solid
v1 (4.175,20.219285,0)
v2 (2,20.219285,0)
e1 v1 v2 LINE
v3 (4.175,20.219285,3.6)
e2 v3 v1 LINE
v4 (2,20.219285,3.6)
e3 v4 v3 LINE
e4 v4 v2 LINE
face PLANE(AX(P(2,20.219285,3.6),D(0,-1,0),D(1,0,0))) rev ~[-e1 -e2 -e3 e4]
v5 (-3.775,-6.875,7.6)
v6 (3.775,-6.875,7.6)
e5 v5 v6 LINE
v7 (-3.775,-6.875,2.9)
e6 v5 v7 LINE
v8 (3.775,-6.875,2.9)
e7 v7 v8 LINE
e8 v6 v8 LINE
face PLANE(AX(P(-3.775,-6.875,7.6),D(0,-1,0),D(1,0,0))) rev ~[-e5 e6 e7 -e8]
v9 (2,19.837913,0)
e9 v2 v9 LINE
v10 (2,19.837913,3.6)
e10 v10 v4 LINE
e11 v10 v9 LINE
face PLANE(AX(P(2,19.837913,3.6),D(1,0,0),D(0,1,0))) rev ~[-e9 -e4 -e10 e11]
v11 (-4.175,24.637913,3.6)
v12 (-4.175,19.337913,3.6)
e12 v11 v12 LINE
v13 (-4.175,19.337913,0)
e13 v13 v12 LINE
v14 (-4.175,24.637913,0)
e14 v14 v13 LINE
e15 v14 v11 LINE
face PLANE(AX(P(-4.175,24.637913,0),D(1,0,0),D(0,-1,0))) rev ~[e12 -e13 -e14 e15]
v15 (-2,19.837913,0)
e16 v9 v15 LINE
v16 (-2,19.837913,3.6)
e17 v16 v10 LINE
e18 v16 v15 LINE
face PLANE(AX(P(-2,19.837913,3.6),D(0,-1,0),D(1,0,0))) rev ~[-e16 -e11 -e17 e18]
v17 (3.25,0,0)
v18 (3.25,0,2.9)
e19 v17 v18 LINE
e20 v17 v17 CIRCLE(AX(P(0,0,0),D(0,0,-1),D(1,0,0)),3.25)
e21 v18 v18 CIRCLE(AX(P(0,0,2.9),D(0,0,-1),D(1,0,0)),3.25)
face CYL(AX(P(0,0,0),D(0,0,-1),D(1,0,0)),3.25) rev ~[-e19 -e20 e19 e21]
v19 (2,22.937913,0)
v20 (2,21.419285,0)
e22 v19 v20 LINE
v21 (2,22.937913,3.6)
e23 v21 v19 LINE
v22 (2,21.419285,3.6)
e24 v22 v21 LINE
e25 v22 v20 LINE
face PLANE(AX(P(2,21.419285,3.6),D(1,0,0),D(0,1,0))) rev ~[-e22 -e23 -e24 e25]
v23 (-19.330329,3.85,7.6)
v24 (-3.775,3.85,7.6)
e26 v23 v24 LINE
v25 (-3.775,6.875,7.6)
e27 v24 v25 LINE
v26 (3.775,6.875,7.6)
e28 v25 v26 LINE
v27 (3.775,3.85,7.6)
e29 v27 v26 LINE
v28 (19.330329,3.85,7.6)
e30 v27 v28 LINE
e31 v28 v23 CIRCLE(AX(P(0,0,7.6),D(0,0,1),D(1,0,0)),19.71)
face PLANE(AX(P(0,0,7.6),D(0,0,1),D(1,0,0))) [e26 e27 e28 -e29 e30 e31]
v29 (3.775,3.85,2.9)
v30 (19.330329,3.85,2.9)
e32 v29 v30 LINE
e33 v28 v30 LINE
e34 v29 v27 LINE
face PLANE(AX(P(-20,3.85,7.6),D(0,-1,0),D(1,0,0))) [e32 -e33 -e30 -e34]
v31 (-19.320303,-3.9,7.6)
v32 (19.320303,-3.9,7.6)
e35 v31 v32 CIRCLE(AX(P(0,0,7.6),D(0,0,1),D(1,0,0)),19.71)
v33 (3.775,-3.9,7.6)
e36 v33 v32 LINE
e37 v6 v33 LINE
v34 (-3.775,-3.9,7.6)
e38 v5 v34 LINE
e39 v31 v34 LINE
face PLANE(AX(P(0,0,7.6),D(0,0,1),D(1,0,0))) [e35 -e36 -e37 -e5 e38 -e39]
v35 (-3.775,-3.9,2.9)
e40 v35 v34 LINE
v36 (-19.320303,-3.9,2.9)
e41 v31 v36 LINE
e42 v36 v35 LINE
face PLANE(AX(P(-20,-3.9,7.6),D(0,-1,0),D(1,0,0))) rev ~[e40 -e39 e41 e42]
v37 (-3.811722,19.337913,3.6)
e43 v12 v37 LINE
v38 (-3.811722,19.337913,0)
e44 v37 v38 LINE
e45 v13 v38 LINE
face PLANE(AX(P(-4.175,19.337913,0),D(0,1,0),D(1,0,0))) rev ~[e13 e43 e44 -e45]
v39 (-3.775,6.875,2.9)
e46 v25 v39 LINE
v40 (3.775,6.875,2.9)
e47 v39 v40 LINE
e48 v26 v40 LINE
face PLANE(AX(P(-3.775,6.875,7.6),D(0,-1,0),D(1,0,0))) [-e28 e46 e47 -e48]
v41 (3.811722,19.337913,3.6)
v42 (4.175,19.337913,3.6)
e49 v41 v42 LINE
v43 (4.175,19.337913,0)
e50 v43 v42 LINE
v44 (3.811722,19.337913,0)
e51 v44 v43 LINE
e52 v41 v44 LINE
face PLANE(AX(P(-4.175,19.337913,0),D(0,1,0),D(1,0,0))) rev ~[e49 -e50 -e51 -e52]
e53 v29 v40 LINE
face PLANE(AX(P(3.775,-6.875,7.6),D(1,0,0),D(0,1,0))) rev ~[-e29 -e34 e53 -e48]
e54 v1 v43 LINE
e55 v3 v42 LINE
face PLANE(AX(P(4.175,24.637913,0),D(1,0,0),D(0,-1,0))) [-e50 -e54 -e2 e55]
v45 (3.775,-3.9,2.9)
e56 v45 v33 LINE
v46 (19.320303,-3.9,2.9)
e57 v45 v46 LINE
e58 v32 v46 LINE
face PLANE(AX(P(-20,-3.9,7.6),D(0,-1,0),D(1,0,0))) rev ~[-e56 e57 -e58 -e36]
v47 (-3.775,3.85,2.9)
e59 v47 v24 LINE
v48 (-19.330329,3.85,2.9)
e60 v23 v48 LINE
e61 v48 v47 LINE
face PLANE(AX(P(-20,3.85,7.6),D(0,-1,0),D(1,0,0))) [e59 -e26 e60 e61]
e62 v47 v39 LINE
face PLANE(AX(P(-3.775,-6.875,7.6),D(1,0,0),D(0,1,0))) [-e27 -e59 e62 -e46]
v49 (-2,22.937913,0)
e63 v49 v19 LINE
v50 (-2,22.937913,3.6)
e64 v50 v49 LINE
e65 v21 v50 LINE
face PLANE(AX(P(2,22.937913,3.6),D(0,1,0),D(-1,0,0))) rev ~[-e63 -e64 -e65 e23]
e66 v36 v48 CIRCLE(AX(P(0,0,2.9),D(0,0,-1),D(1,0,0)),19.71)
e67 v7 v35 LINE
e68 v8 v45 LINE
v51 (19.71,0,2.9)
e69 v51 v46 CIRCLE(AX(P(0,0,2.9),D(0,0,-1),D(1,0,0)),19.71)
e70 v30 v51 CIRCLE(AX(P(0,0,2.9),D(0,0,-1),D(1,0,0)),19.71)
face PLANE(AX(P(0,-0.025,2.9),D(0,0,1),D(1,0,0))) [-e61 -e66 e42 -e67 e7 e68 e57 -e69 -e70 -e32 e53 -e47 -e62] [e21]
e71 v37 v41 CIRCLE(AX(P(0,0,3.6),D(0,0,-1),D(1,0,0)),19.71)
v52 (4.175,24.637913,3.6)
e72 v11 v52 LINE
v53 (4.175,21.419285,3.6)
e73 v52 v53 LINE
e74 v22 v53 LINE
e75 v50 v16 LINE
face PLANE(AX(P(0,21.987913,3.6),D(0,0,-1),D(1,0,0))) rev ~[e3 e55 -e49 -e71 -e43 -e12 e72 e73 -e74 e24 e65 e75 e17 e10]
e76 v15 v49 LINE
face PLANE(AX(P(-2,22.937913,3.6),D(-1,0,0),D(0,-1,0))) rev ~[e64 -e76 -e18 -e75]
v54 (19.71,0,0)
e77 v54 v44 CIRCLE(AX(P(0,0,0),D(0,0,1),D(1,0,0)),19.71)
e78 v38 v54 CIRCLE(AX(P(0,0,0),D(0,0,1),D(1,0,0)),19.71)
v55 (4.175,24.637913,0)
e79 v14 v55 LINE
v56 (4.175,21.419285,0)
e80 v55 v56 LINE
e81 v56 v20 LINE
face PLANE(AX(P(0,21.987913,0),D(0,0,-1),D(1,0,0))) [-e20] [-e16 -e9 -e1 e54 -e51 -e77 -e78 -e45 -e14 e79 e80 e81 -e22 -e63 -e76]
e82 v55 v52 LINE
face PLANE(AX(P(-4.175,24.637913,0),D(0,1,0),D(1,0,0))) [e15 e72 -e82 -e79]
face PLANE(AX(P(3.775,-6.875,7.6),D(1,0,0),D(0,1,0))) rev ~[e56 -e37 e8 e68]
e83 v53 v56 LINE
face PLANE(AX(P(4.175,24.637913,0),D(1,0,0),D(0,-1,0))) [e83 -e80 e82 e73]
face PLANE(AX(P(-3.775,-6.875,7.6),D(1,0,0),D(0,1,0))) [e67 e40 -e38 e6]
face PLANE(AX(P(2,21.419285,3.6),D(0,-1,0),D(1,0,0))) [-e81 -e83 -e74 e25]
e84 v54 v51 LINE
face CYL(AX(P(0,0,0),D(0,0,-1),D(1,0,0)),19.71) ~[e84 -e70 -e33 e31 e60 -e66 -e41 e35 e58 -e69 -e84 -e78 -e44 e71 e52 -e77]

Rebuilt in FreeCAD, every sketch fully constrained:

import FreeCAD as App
import Part
import Sketcher

V = App.Vector
Q = App.Units.Quantity

doc = App.newDocument("Part")
body = doc.addObject("PartDesign::Body", "Body")

# Sketch on XY plane
sketch1 = body.newObject("Sketcher::SketchObject", "Sketch")
sketch1.AttachmentSupport = (doc.getObject("XY_Plane"), [""])
sketch1.MapMode = "FlatFace"
sketch1.addGeometry(Part.Circle(V(0, 0, 0), V(0, 0, 1), 20), False)
sketch1.addConstraint(Sketcher.Constraint("Coincident", 0, 3, -1, 1))
sketch1.addConstraint(Sketcher.Constraint("Diameter", 0, Q("39.42 mm")))
pad1 = body.newObject("PartDesign::Pad", "Pad")
pad1.Profile = sketch1
pad1.Length = 7.6

# Sketch on XY plane
sketch2 = body.newObject("Sketcher::SketchObject", "Sketch001")
sketch2.AttachmentSupport = (doc.getObject("XY_Plane"), [""])
sketch2.MapMode = "FlatFace"
sketch2.AttachmentOffset = App.Placement(V(0, 0, 7.6), App.Rotation())
sketch2.addGeometry(Part.LineSegment(V(-20, 4, 0), V(-20, -4, 0)), False)
sketch2.addGeometry(Part.LineSegment(V(-20, -4, 0), V(20, -4, 0)), False)
sketch2.addGeometry(Part.LineSegment(V(20, -4, 0), V(20, 4, 0)), False)
sketch2.addGeometry(Part.LineSegment(V(20, 4, 0), V(-20, 4, 0)), False)
sketch2.addConstraint(Sketcher.Constraint("Coincident", 0, 2, 1, 1))
sketch2.addConstraint(Sketcher.Constraint("Coincident", 1, 2, 2, 1))
sketch2.addConstraint(Sketcher.Constraint("Coincident", 2, 2, 3, 1))
sketch2.addConstraint(Sketcher.Constraint("Coincident", 3, 2, 0, 1))
sketch2.addConstraint(Sketcher.Constraint("Vertical", 0))
sketch2.addConstraint(Sketcher.Constraint("Horizontal", 1))
sketch2.addConstraint(Sketcher.Constraint("Vertical", 2))
sketch2.addConstraint(Sketcher.Constraint("Horizontal", 3))
sketch2.addConstraint(Sketcher.Constraint("DistanceX", 1, 1, 1, 2, Q("40 mm")))
sketch2.addConstraint(Sketcher.Constraint("DistanceX", 0, 2, -1, 1, Q("20 mm")))
sketch2.addConstraint(Sketcher.Constraint("DistanceY", 0, 2, 0, 1, Q("7.75 mm")))
sketch2.addConstraint(Sketcher.Constraint("DistanceY", 0, 2, -1, 1, Q("3.9 mm")))
pocket1 = body.newObject("PartDesign::Pocket", "Pocket")
pocket1.Profile = sketch2
pocket1.Length = 4.7

# Sketch on XY plane
sketch3 = body.newObject("Sketcher::SketchObject", "Sketch002")
sketch3.AttachmentSupport = (doc.getObject("XY_Plane"), [""])
sketch3.MapMode = "FlatFace"
sketch3.AttachmentOffset = App.Placement(V(0, 0, 7.6), App.Rotation())
sketch3.addGeometry(Part.LineSegment(V(-4, 7, 0), V(-4, -7, 0)), False)
sketch3.addGeometry(Part.LineSegment(V(-4, -7, 0), V(4, -7, 0)), False)
sketch3.addGeometry(Part.LineSegment(V(4, -7, 0), V(4, 7, 0)), False)
sketch3.addGeometry(Part.LineSegment(V(4, 7, 0), V(-4, 7, 0)), False)
sketch3.addConstraint(Sketcher.Constraint("Coincident", 0, 2, 1, 1))
sketch3.addConstraint(Sketcher.Constraint("Coincident", 1, 2, 2, 1))
sketch3.addConstraint(Sketcher.Constraint("Coincident", 2, 2, 3, 1))
sketch3.addConstraint(Sketcher.Constraint("Coincident", 3, 2, 0, 1))
sketch3.addConstraint(Sketcher.Constraint("Vertical", 0))
sketch3.addConstraint(Sketcher.Constraint("Horizontal", 1))
sketch3.addConstraint(Sketcher.Constraint("Vertical", 2))
sketch3.addConstraint(Sketcher.Constraint("Horizontal", 3))
sketch3.addConstraint(Sketcher.Constraint("Symmetric", 0, 2, 2, 2, -1, 1))
sketch3.addConstraint(Sketcher.Constraint("DistanceX", 1, 1, 1, 2, Q("7.55 mm")))
sketch3.addConstraint(Sketcher.Constraint("DistanceY", 0, 2, 0, 1, Q("13.75 mm")))
pocket2 = body.newObject("PartDesign::Pocket", "Pocket001")
pocket2.Profile = sketch3
pocket2.Length = 4.7

# Sketch on XY plane
sketch4 = body.newObject("Sketcher::SketchObject", "Sketch003")
sketch4.AttachmentSupport = (doc.getObject("XY_Plane"), [""])
sketch4.MapMode = "FlatFace"
sketch4.addGeometry(Part.LineSegment(V(-4, 19, 0), V(-4, 25, 0)), False)
sketch4.addGeometry(Part.LineSegment(V(-4, 25, 0), V(4, 25, 0)), False)
sketch4.addGeometry(Part.LineSegment(V(4, 25, 0), V(4, 19, 0)), False)
sketch4.addGeometry(Part.LineSegment(V(4, 19, 0), V(-4, 19, 0)), False)
sketch4.addConstraint(Sketcher.Constraint("Coincident", 0, 2, 1, 1))
sketch4.addConstraint(Sketcher.Constraint("Coincident", 1, 2, 2, 1))
sketch4.addConstraint(Sketcher.Constraint("Coincident", 2, 2, 3, 1))
sketch4.addConstraint(Sketcher.Constraint("Coincident", 3, 2, 0, 1))
sketch4.addConstraint(Sketcher.Constraint("Vertical", 0))
sketch4.addConstraint(Sketcher.Constraint("Horizontal", 1))
sketch4.addConstraint(Sketcher.Constraint("Vertical", 2))
sketch4.addConstraint(Sketcher.Constraint("Horizontal", 3))
sketch4.addConstraint(Sketcher.Constraint("DistanceY", 0, 1, 0, 2, Q("5.3 mm")))
sketch4.addConstraint(Sketcher.Constraint("DistanceX", 1, 1, 1, 2, Q("8.35 mm")))
sketch4.addConstraint(Sketcher.Constraint("DistanceX", 0, 2, -1, 1, Q("4.175 mm")))
sketch4.addConstraint(Sketcher.Constraint("DistanceY", -1, 1, 0, 2, Q("24.637913 mm")))
pad2 = body.newObject("PartDesign::Pad", "Pad001")
pad2.Profile = sketch4
pad2.Length = 3.6

# Sketch on XY plane
sketch5 = body.newObject("Sketcher::SketchObject", "Sketch004")
sketch5.AttachmentSupport = (doc.getObject("XY_Plane"), [""])
sketch5.MapMode = "FlatFace"
sketch5.AttachmentOffset = App.Placement(V(0, 0, 3.6), App.Rotation())
sketch5.addGeometry(Part.LineSegment(V(2, 22.94, 0), V(-2, 22.94, 0)), False)
sketch5.addGeometry(Part.LineSegment(V(-2, 22.94, 0), V(-2, 19.84, 0)), False)
sketch5.addGeometry(Part.LineSegment(V(-2, 19.84, 0), V(2, 19.84, 0)), False)
sketch5.addGeometry(Part.LineSegment(V(2, 19.84, 0), V(2, 20.22, 0)), False)
sketch5.addGeometry(Part.LineSegment(V(2, 20.22, 0), V(4.17, 20.22, 0)), False)
sketch5.addGeometry(Part.LineSegment(V(4.17, 20.22, 0), V(4.17, 21.42, 0)), False)
sketch5.addGeometry(Part.LineSegment(V(4.17, 21.42, 0), V(2, 21.42, 0)), False)
sketch5.addGeometry(Part.LineSegment(V(2, 21.42, 0), V(2, 22.94, 0)), False)
sketch5.addConstraint(Sketcher.Constraint("Coincident", 0, 2, 1, 1))
sketch5.addConstraint(Sketcher.Constraint("Coincident", 1, 2, 2, 1))
sketch5.addConstraint(Sketcher.Constraint("Coincident", 2, 2, 3, 1))
sketch5.addConstraint(Sketcher.Constraint("Coincident", 3, 2, 4, 1))
sketch5.addConstraint(Sketcher.Constraint("Coincident", 4, 2, 5, 1))
sketch5.addConstraint(Sketcher.Constraint("Coincident", 5, 2, 6, 1))
sketch5.addConstraint(Sketcher.Constraint("Coincident", 6, 2, 7, 1))
sketch5.addConstraint(Sketcher.Constraint("Coincident", 7, 2, 0, 1))
sketch5.addConstraint(Sketcher.Constraint("Horizontal", 0))
sketch5.addConstraint(Sketcher.Constraint("Vertical", 1))
sketch5.addConstraint(Sketcher.Constraint("Horizontal", 2))
sketch5.addConstraint(Sketcher.Constraint("Vertical", 3))
sketch5.addConstraint(Sketcher.Constraint("Horizontal", 4))
sketch5.addConstraint(Sketcher.Constraint("Vertical", 5))
sketch5.addConstraint(Sketcher.Constraint("Horizontal", 6))
sketch5.addConstraint(Sketcher.Constraint("Vertical", 7))
sketch5.addConstraint(Sketcher.Constraint("Vertical", 3, 2, 6, 2))
sketch5.addConstraint(Sketcher.Constraint("DistanceX", 0, 2, 0, 1, Q("4 mm")))
sketch5.addConstraint(Sketcher.Constraint("DistanceY", 1, 2, 1, 1, Q("3.1 mm")))
sketch5.addConstraint(Sketcher.Constraint("DistanceY", 5, 1, 5, 2, Q("1.2 mm")))
sketch5.addConstraint(Sketcher.Constraint("DistanceX", 0, 2, -1, 1, Q("2 mm")))
sketch5.addConstraint(Sketcher.Constraint("DistanceX", 4, 1, 4, 2, Q("2.175 mm")))
sketch5.addConstraint(Sketcher.Constraint("DistanceY", 3, 1, 3, 2, Q("0.381372 mm")))
sketch5.addConstraint(Sketcher.Constraint("DistanceY", -1, 1, 0, 2, Q("22.937913 mm")))
pocket3 = body.newObject("PartDesign::Pocket", "Pocket002")
pocket3.Profile = sketch5
pocket3.Type = "ThroughAll"

# Sketch on XY plane
sketch6 = body.newObject("Sketcher::SketchObject", "Sketch005")
sketch6.AttachmentSupport = (doc.getObject("XY_Plane"), [""])
sketch6.MapMode = "FlatFace"
sketch6.addGeometry(Part.Circle(V(0, 0, 0), V(0, 0, 1), 3.2), False)
sketch6.addConstraint(Sketcher.Constraint("Coincident", 0, 3, -1, 1))
sketch6.addConstraint(Sketcher.Constraint("Diameter", 0, Q("6.5 mm")))
pocket4 = body.newObject("PartDesign::Pocket", "Pocket003")
pocket4.Profile = sketch6
pocket4.Length = 3
pocket4.Reversed = True

doc.recompute()
